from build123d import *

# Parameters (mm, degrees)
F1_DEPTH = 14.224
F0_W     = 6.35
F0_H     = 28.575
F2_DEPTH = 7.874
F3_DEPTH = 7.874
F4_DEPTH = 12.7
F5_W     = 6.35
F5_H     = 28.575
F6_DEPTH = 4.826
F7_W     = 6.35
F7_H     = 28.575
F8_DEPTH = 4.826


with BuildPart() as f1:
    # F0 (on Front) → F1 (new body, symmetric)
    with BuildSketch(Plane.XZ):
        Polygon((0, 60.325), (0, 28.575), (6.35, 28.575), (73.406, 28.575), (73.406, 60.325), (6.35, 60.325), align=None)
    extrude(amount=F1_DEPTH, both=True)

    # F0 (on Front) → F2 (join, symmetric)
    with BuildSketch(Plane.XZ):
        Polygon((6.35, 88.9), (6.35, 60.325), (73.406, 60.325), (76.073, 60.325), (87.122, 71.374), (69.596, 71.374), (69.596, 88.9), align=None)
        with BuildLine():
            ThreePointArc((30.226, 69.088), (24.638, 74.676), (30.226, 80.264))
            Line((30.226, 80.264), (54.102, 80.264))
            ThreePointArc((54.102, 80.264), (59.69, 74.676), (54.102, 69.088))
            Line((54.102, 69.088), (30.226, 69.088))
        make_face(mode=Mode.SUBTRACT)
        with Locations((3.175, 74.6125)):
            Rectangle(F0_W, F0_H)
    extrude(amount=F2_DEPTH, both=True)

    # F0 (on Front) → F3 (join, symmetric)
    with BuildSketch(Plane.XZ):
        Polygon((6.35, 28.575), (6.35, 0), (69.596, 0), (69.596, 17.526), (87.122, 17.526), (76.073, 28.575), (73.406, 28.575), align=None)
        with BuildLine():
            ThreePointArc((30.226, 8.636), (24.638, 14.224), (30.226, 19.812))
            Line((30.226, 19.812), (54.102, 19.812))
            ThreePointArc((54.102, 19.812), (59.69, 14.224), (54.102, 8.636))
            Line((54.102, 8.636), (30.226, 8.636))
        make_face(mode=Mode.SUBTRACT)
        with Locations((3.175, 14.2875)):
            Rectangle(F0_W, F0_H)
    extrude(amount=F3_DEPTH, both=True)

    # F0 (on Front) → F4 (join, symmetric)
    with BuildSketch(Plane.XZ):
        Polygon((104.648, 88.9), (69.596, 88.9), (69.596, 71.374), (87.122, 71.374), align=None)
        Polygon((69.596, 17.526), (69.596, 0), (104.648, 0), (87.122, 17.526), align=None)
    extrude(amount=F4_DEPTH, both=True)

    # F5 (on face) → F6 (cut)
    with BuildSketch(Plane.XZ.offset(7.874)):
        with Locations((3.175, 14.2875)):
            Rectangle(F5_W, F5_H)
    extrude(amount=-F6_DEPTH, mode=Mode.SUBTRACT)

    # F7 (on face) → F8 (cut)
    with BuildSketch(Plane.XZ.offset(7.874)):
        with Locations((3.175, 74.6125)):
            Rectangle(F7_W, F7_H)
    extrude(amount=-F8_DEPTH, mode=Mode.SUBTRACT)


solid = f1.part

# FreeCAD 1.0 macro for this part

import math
import FreeCAD as App
import Part
import Sketcher
from FreeCAD import Vector
Q = App.Units.Quantity

doc = App.newDocument("Part")
body = doc.addObject("PartDesign::Body", "Body")

sketch1 = body.newObject("Sketcher::SketchObject", "Sketch")
sketch1.AttachmentSupport = (doc.getObject("XZ_Plane"), [""])
sketch1.MapMode = "FlatFace"
sketch1.addGeometry([
    Part.LineSegment(Vector(0, 60, 0), Vector(0, 29, 0)),
    Part.LineSegment(Vector(0, 29, 0), Vector(73, 29, 0)),
    Part.LineSegment(Vector(73, 29, 0), Vector(73, 60, 0)),
    Part.LineSegment(Vector(73, 60, 0), Vector(0, 60, 0)),
], False)
sketch1.addConstraint([
    Sketcher.Constraint("Coincident", 0, 2, 1, 1),
    Sketcher.Constraint("Coincident", 1, 2, 2, 1),
    Sketcher.Constraint("Coincident", 2, 2, 3, 1),
    Sketcher.Constraint("Coincident", 3, 2, 0, 1),
    Sketcher.Constraint("Vertical", 0),
    Sketcher.Constraint("Horizontal", 1),
    Sketcher.Constraint("Vertical", 2),
    Sketcher.Constraint("Horizontal", 3),
    Sketcher.Constraint("PointOnObject", 0, 2, -2),
    Sketcher.Constraint("DistanceX", 1, 1, 1, 2, Q("2.89 in")),
    Sketcher.Constraint("DistanceY", 0, 2, 0, 1, Q("1.25 in")),
    Sketcher.Constraint("DistanceY", -1, 1, 0, 2, Q("1.125 in")),
])
pad1 = body.newObject("PartDesign::Pad", "Pad")
pad1.Profile = sketch1
pad1.Length = Q("1.12 in")
pad1.Midplane = True

sketch2 = body.newObject("Sketcher::SketchObject", "Sketch001")
sketch2.AttachmentSupport = (doc.getObject("XZ_Plane"), [""])
sketch2.MapMode = "FlatFace"
sketch2.addGeometry([
    Part.LineSegment(Vector(70, 89, 0), Vector(0, 89, 0)),
    Part.LineSegment(Vector(0, 89, 0), Vector(0, 60, 0)),
    Part.LineSegment(Vector(0, 60, 0), Vector(76, 60, 0)),
    Part.LineSegment(Vector(76, 60, 0), Vector(87, 71, 0)),
    Part.LineSegment(Vector(87, 71, 0), Vector(70, 71, 0)),
    Part.LineSegment(Vector(70, 71, 0), Vector(70, 89, 0)),
    Part.LineSegment(Vector(54, 69, 0), Vector(30, 69, 0)),
    Part.ArcOfCircle(Part.Circle(Vector(30, 75, 0), Vector(0, 0, 1), 6), math.radians(90), math.radians(270)),
    Part.LineSegment(Vector(30, 80, 0), Vector(54, 80, 0)),
    Part.ArcOfCircle(Part.Circle(Vector(54, 75, 0), Vector(0, 0, 1), 6), math.radians(-90), math.radians(90)),
], False)
sketch2.addConstraint([
    Sketcher.Constraint("Coincident", 0, 2, 1, 1),
    Sketcher.Constraint("Coincident", 1, 2, 2, 1),
    Sketcher.Constraint("Coincident", 2, 2, 3, 1),
    Sketcher.Constraint("Coincident", 3, 2, 4, 1),
    Sketcher.Constraint("Coincident", 4, 2, 5, 1),
    Sketcher.Constraint("Coincident", 5, 2, 0, 1),
    Sketcher.Constraint("Tangent", 6, 2, 7, 2),
    Sketcher.Constraint("Tangent", 7, 1, 8, 1),
    Sketcher.Constraint("Tangent", 8, 2, 9, 2),
    Sketcher.Constraint("Tangent", 9, 1, 6, 1),
    Sketcher.Constraint("Horizontal", 0),
    Sketcher.Constraint("Vertical", 1),
    Sketcher.Constraint("Horizontal", 2),
    Sketcher.Constraint("Horizontal", 4),
    Sketcher.Constraint("Vertical", 5),
    Sketcher.Constraint("Horizontal", 6),
    Sketcher.Constraint("Horizontal", 8),
    Sketcher.Constraint("PointOnObject", 0, 2, -2),
    Sketcher.Constraint("Equal", 4, 5),
    Sketcher.Constraint("Radius", 7, Q("0.22 in")),
    Sketcher.Constraint("Angle", 3, Q("45 deg")),
    Sketcher.Constraint("DistanceX", 0, 2, 0, 1, Q("2.74 in")),
    Sketcher.Constraint("DistanceX", 4, 2, 4, 1, Q("0.69 in")),
    Sketcher.Constraint("DistanceX", 6, 2, 6, 1, Q("0.94 in")),
    Sketcher.Constraint("DistanceY", -1, 1, 0, 2, Q("3.5 in")),
    Sketcher.Constraint("DistanceX", 9, 3, 3, 2, Q("1.3 in")),
    Sketcher.Constraint("DistanceX", 2, 1, 2, 2, Q("2.995 in")),
    Sketcher.Constraint("DistanceY", -1, 1, 7, 3, Q("2.94 in")),
])
pad2 = body.newObject("PartDesign::Pad", "Pad001")
pad2.Profile = sketch2
pad2.Length = Q("0.62 in")
pad2.Midplane = True

sketch3 = body.newObject("Sketcher::SketchObject", "Sketch002")
sketch3.AttachmentSupport = (doc.getObject("XZ_Plane"), [""])
sketch3.MapMode = "FlatFace"
sketch3.addGeometry([
    Part.LineSegment(Vector(76, 29, 0), Vector(0, 29, 0)),
    Part.LineSegment(Vector(0, 29, 0), Vector(0, 0, 0)),
    Part.LineSegment(Vector(0, 0, 0), Vector(70, 0, 0)),
    Part.LineSegment(Vector(70, 0, 0), Vector(70, 18, 0)),
    Part.LineSegment(Vector(70, 18, 0), Vector(87, 18, 0)),
    Part.LineSegment(Vector(87, 18, 0), Vector(76, 29, 0)),
    Part.LineSegment(Vector(54, 9, 0), Vector(30, 9, 0)),
    Part.ArcOfCircle(Part.Circle(Vector(30, 14, 0), Vector(0, 0, 1), 6), math.radians(90), math.radians(270)),
    Part.LineSegment(Vector(30, 20, 0), Vector(54, 20, 0)),
    Part.ArcOfCircle(Part.Circle(Vector(54, 14, 0), Vector(0, 0, 1), 6), math.radians(-90), math.radians(90)),
], False)
sketch3.addConstraint([
    Sketcher.Constraint("Coincident", 0, 2, 1, 1),
    Sketcher.Constraint("Coincident", 1, 2, 2, 1),
    Sketcher.Constraint("Coincident", 2, 2, 3, 1),
    Sketcher.Constraint("Coincident", 3, 2, 4, 1),
    Sketcher.Constraint("Coincident", 4, 2, 5, 1),
    Sketcher.Constraint("Coincident", 5, 2, 0, 1),
    Sketcher.Constraint("Tangent", 6, 2, 7, 2),
    Sketcher.Constraint("Tangent", 7, 1, 8, 1),
    Sketcher.Constraint("Tangent", 8, 2, 9, 2),
    Sketcher.Constraint("Tangent", 9, 1, 6, 1),
    Sketcher.Constraint("Horizontal", 0),
    Sketcher.Constraint("Vertical", 1),
    Sketcher.Constraint("Horizontal", 2),
    Sketcher.Constraint("Vertical", 3),
    Sketcher.Constraint("Horizontal", 4),
    Sketcher.Constraint("Horizontal", 6),
    Sketcher.Constraint("Horizontal", 8),
    Sketcher.Constraint("Coincident", 1, 2, -1, 1),
    Sketcher.Constraint("Equal", 4, 3),
    Sketcher.Constraint("Radius", 7, Q("0.22 in")),
    Sketcher.Constraint("Angle", 5, Q("135 deg")),
    Sketcher.Constraint("DistanceX", 2, 1, 2, 2, Q("2.74 in")),
    Sketcher.Constraint("DistanceX", 4, 1, 4, 2, Q("0.69 in")),
    Sketcher.Constraint("DistanceX", 6, 2, 6, 1, Q("0.94 in")),
    Sketcher.Constraint("DistanceX", 9, 3, 4, 2, Q("1.3 in")),
    Sketcher.Constraint("DistanceX", 0, 2, 0, 1, Q("2.995 in")),
    Sketcher.Constraint("DistanceY", -1, 1, 7, 3, Q("0.56 in")),
])
pad3 = body.newObject("PartDesign::Pad", "Pad002")
pad3.Profile = sketch3
pad3.Length = Q("0.62 in")
pad3.Midplane = True

sketch4 = body.newObject("Sketcher::SketchObject", "Sketch003")
sketch4.AttachmentSupport = (doc.getObject("XZ_Plane"), [""])
sketch4.MapMode = "FlatFace"
sketch4.addGeometry([
    Part.LineSegment(Vector(105, 89, 0), Vector(70, 89, 0)),
    Part.LineSegment(Vector(70, 89, 0), Vector(70, 71, 0)),
    Part.LineSegment(Vector(70, 71, 0), Vector(87, 71, 0)),
    Part.LineSegment(Vector(87, 71, 0), Vector(105, 89, 0)),
    Part.LineSegment(Vector(70, 18, 0), Vector(70, 0, 0)),
    Part.LineSegment(Vector(70, 0, 0), Vector(105, 0, 0)),
    Part.LineSegment(Vector(105, 0, 0), Vector(87, 18, 0)),
    Part.LineSegment(Vector(87, 18, 0), Vector(70, 18, 0)),
], False)
sketch4.addConstraint([
    Sketcher.Constraint("Coincident", 0, 2, 1, 1),
    Sketcher.Constraint("Coincident", 1, 2, 2, 1),
    Sketcher.Constraint("Coincident", 2, 2, 3, 1),
    Sketcher.Constraint("Coincident", 3, 2, 0, 1),
    Sketcher.Constraint("Coincident", 4, 2, 5, 1),
    Sketcher.Constraint("Coincident", 5, 2, 6, 1),
    Sketcher.Constraint("Coincident", 6, 2, 7, 1),
    Sketcher.Constraint("Coincident", 7, 2, 4, 1),
    Sketcher.Constraint("Horizontal", 0),
    Sketcher.Constraint("Vertical", 1),
    Sketcher.Constraint("Horizontal", 2),
    Sketcher.Constraint("Vertical", 4),
    Sketcher.Constraint("Horizontal", 5),
    Sketcher.Constraint("Horizontal", 7),
    Sketcher.Constraint("PointOnObject", 4, 2, -1),
    Sketcher.Constraint("Perpendicular", 3, 6),
    Sketcher.Constraint("Vertical", 1, 2, 4, 2),
    Sketcher.Constraint("Vertical", 3, 2, 5, 2),
    Sketcher.Constraint("Vertical", 2, 2, 6, 2),
    Sketcher.Constraint("Equal", 7, 1),
    Sketcher.Constraint("Equal", 1, 4),
    Sketcher.Constraint("DistanceX", 0, 2, 0, 1, Q("1.38 in")),
    Sketcher.Constraint("DistanceY", -1, 1, 0, 2, Q("3.5 in")),
    Sketcher.Constraint("DistanceX", -1, 1, 0, 2, Q("2.74 in")),
])
pad4 = body.newObject("PartDesign::Pad", "Pad003")
pad4.Profile = sketch4
pad4.Length = Q("1 in")
pad4.Midplane = True

sketch5 = body.newObject("Sketcher::SketchObject", "Sketch004")
sketch5.AttachmentSupport = (doc.getObject("XZ_Plane"), [""])
sketch5.MapMode = "FlatFace"
sketch5.AttachmentOffset = App.Placement(Vector(0, 0, 0.31 * 25.4), App.Rotation())
sketch5.addGeometry([
    Part.LineSegment(Vector(0, 29, 0), Vector(0, 0, 0)),
    Part.LineSegment(Vector(0, 0, 0), Vector(6, 0, 0)),
    Part.LineSegment(Vector(6, 0, 0), Vector(6, 29, 0)),
    Part.LineSegment(Vector(6, 29, 0), Vector(0, 29, 0)),
], False)
sketch5.addConstraint([
    Sketcher.Constraint("Coincident", 0, 2, 1, 1),
    Sketcher.Constraint("Coincident", 1, 2, 2, 1),
    Sketcher.Constraint("Coincident", 2, 2, 3, 1),
    Sketcher.Constraint("Coincident", 3, 2, 0, 1),
    Sketcher.Constraint("Vertical", 0),
    Sketcher.Constraint("Horizontal", 1),
    Sketcher.Constraint("Vertical", 2),
    Sketcher.Constraint("Horizontal", 3),
    Sketcher.Constraint("Coincident", 0, 2, -1, 1),
    Sketcher.Constraint("DistanceX", 1, 1, 1, 2, Q("0.25 in")),
    Sketcher.Constraint("DistanceY", 0, 2, 0, 1, Q("1.125 in")),
])
pocket1 = body.newObject("PartDesign::Pocket", "Pocket")
pocket1.Profile = sketch5
pocket1.Length = Q("0.19 in")

sketch6 = body.newObject("Sketcher::SketchObject", "Sketch005")
sketch6.AttachmentSupport = (doc.getObject("XZ_Plane"), [""])
sketch6.MapMode = "FlatFace"
sketch6.AttachmentOffset = App.Placement(Vector(0, 0, 0.31 * 25.4), App.Rotation())
sketch6.addGeometry([
    Part.LineSegment(Vector(0, 89, 0), Vector(0, 60, 0)),
    Part.LineSegment(Vector(0, 60, 0), Vector(6, 60, 0)),
    Part.LineSegment(Vector(6, 60, 0), Vector(6, 89, 0)),
    Part.LineSegment(Vector(6, 89, 0), Vector(0, 89, 0)),
], False)
sketch6.addConstraint([
    Sketcher.Constraint("Coincident", 0, 2, 1, 1),
    Sketcher.Constraint("Coincident", 1, 2, 2, 1),
    Sketcher.Constraint("Coincident", 2, 2, 3, 1),
    Sketcher.Constraint("Coincident", 3, 2, 0, 1),
    Sketcher.Constraint("Vertical", 0),
    Sketcher.Constraint("Horizontal", 1),
    Sketcher.Constraint("Vertical", 2),
    Sketcher.Constraint("Horizontal", 3),
    Sketcher.Constraint("PointOnObject", 0, 2, -2),
    Sketcher.Constraint("DistanceX", 1, 1, 1, 2, Q("0.25 in")),
    Sketcher.Constraint("DistanceY", -1, 1, 2, 2, Q("3.5 in")),
    Sketcher.Constraint("DistanceY", 0, 2, 0, 1, Q("1.125 in")),
])
pocket2 = body.newObject("PartDesign::Pocket", "Pocket001")
pocket2.Profile = sketch6
pocket2.Length = Q("0.19 in")

doc.recompute()
